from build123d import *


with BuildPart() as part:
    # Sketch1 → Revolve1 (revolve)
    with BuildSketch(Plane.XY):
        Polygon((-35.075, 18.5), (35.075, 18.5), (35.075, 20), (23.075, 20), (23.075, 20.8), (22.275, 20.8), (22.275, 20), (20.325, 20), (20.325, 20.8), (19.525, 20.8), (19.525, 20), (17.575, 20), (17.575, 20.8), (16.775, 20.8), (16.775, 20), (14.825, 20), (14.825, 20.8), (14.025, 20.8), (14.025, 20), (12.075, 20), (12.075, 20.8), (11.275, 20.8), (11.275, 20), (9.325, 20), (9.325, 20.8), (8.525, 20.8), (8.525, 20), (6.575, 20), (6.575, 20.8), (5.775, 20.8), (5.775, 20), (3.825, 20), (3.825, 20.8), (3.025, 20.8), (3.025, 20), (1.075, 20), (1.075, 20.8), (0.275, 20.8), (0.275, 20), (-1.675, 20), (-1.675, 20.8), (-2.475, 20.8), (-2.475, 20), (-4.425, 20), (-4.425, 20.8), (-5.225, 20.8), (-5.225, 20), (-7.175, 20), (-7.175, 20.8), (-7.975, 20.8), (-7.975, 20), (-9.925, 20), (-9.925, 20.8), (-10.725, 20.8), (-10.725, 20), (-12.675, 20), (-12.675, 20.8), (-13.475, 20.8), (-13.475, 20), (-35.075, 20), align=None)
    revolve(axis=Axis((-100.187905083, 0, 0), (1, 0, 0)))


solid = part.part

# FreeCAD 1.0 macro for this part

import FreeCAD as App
import Part
import Sketcher


def add_polygon(sketch, points):
    """Adds a closed chain of lines whose ends are joined by coincident constraints."""
    first, n = sketch.GeometryCount, len(points)
    for a, b in zip(points, points[1:] + points[:1]):
        sketch.addGeometry(Part.LineSegment(App.Vector(*a, 0), App.Vector(*b, 0)), False)
    for i in range(n):
        sketch.addConstraint(Sketcher.Constraint("Coincident", first + i, 2, first + (i + 1) % n, 1))

doc = App.newDocument("Part")
body = doc.addObject("PartDesign::Body", "Body")

# Sketch on XY plane
sketch1 = body.newObject("Sketcher::SketchObject", "Sketch")
sketch1.AttachmentSupport = (doc.getObject("XY_Plane"), [""])
sketch1.MapMode = "FlatFace"
add_polygon(sketch1, [(-35.075, 18.5), (35.075, 18.5), (35.075, 20), (23.075, 20), (23.075, 20.8), (22.275, 20.8), (22.275, 20), (20.325, 20), (20.325, 20.8), (19.525, 20.8), (19.525, 20), (17.575, 20), (17.575, 20.8), (16.775, 20.8), (16.775, 20), (14.825, 20), (14.825, 20.8), (14.025, 20.8), (14.025, 20), (12.075, 20), (12.075, 20.8), (11.275, 20.8), (11.275, 20), (9.325, 20), (9.325, 20.8), (8.525, 20.8), (8.525, 20), (6.575, 20), (6.575, 20.8), (5.775, 20.8), (5.775, 20), (3.825, 20), (3.825, 20.8), (3.025, 20.8), (3.025, 20), (1.075, 20), (1.075, 20.8), (0.275, 20.8), (0.275, 20), (-1.675, 20), (-1.675, 20.8), (-2.475, 20.8), (-2.475, 20), (-4.425, 20), (-4.425, 20.8), (-5.225, 20.8), (-5.225, 20), (-7.175, 20), (-7.175, 20.8), (-7.975, 20.8), (-7.975, 20), (-9.925, 20), (-9.925, 20.8), (-10.725, 20.8), (-10.725, 20), (-12.675, 20), (-12.675, 20.8), (-13.475, 20.8), (-13.475, 20), (-35.075, 20)])  # lines 0-59
sketch1.addConstraint(Sketcher.Constraint("Horizontal", 0))
sketch1.addConstraint(Sketcher.Constraint("Vertical", 1))
sketch1.addConstraint(Sketcher.Constraint("Horizontal", 2))
sketch1.addConstraint(Sketcher.Constraint("Vertical", 3))
sketch1.addConstraint(Sketcher.Constraint("Horizontal", 4))
sketch1.addConstraint(Sketcher.Constraint("Vertical", 5))
sketch1.addConstraint(Sketcher.Constraint("Horizontal", 6))
sketch1.addConstraint(Sketcher.Constraint("Vertical", 7))
sketch1.addConstraint(Sketcher.Constraint("Horizontal", 8))
sketch1.addConstraint(Sketcher.Constraint("Vertical", 9))
sketch1.addConstraint(Sketcher.Constraint("Horizontal", 10))
sketch1.addConstraint(Sketcher.Constraint("Vertical", 11))
sketch1.addConstraint(Sketcher.Constraint("Horizontal", 12))
sketch1.addConstraint(Sketcher.Constraint("Vertical", 13))
sketch1.addConstraint(Sketcher.Constraint("Horizontal", 14))
sketch1.addConstraint(Sketcher.Constraint("Vertical", 15))
sketch1.addConstraint(Sketcher.Constraint("Horizontal", 16))
sketch1.addConstraint(Sketcher.Constraint("Vertical", 17))
sketch1.addConstraint(Sketcher.Constraint("Horizontal", 18))
sketch1.addConstraint(Sketcher.Constraint("Vertical", 19))
sketch1.addConstraint(Sketcher.Constraint("Horizontal", 20))
sketch1.addConstraint(Sketcher.Constraint("Vertical", 21))
sketch1.addConstraint(Sketcher.Constraint("Horizontal", 22))
sketch1.addConstraint(Sketcher.Constraint("Vertical", 23))
sketch1.addConstraint(Sketcher.Constraint("Horizontal", 24))
sketch1.addConstraint(Sketcher.Constraint("Vertical", 25))
sketch1.addConstraint(Sketcher.Constraint("Horizontal", 26))
sketch1.addConstraint(Sketcher.Constraint("Vertical", 27))
sketch1.addConstraint(Sketcher.Constraint("Horizontal", 28))
sketch1.addConstraint(Sketcher.Constraint("Vertical", 29))
sketch1.addConstraint(Sketcher.Constraint("Horizontal", 30))
sketch1.addConstraint(Sketcher.Constraint("Vertical", 31))
sketch1.addConstraint(Sketcher.Constraint("Horizontal", 32))
sketch1.addConstraint(Sketcher.Constraint("Vertical", 33))
sketch1.addConstraint(Sketcher.Constraint("Horizontal", 34))
sketch1.addConstraint(Sketcher.Constraint("Vertical", 35))
sketch1.addConstraint(Sketcher.Constraint("Horizontal", 36))
sketch1.addConstraint(Sketcher.Constraint("Vertical", 37))
sketch1.addConstraint(Sketcher.Constraint("Horizontal", 38))
sketch1.addConstraint(Sketcher.Constraint("Vertical", 39))
sketch1.addConstraint(Sketcher.Constraint("Horizontal", 40))
sketch1.addConstraint(Sketcher.Constraint("Vertical", 41))
sketch1.addConstraint(Sketcher.Constraint("Horizontal", 42))
sketch1.addConstraint(Sketcher.Constraint("Vertical", 43))
sketch1.addConstraint(Sketcher.Constraint("Horizontal", 44))
sketch1.addConstraint(Sketcher.Constraint("Vertical", 45))
sketch1.addConstraint(Sketcher.Constraint("Horizontal", 46))
sketch1.addConstraint(Sketcher.Constraint("Vertical", 47))
sketch1.addConstraint(Sketcher.Constraint("Horizontal", 48))
sketch1.addConstraint(Sketcher.Constraint("Vertical", 49))
sketch1.addConstraint(Sketcher.Constraint("Horizontal", 50))
sketch1.addConstraint(Sketcher.Constraint("Vertical", 51))
sketch1.addConstraint(Sketcher.Constraint("Horizontal", 52))
sketch1.addConstraint(Sketcher.Constraint("Vertical", 53))
sketch1.addConstraint(Sketcher.Constraint("Horizontal", 54))
sketch1.addConstraint(Sketcher.Constraint("Vertical", 55))
sketch1.addConstraint(Sketcher.Constraint("Horizontal", 56))
sketch1.addConstraint(Sketcher.Constraint("Vertical", 57))
sketch1.addConstraint(Sketcher.Constraint("Horizontal", 58))
sketch1.addConstraint(Sketcher.Constraint("Vertical", 59))
sketch1.addConstraint(Sketcher.Constraint("Symmetric", 1, 2, 58, 2, -2))
sketch1.addConstraint(Sketcher.Constraint("Horizontal", 2, 2, 5, 2))
sketch1.addConstraint(Sketcher.Constraint("Horizontal", 4, 2, 7, 2))
sketch1.addConstraint(Sketcher.Constraint("Horizontal", 6, 2, 9, 2))
sketch1.addConstraint(Sketcher.Constraint("Horizontal", 8, 2, 11, 2))
sketch1.addConstraint(Sketcher.Constraint("Horizontal", 10, 2, 13, 2))
sketch1.addConstraint(Sketcher.Constraint("Horizontal", 12, 2, 15, 2))
sketch1.addConstraint(Sketcher.Constraint("Horizontal", 14, 2, 17, 2))
sketch1.addConstraint(Sketcher.Constraint("Horizontal", 16, 2, 19, 2))
sketch1.addConstraint(Sketcher.Constraint("Horizontal", 18, 2, 21, 2))
sketch1.addConstraint(Sketcher.Constraint("Horizontal", 20, 2, 23, 2))
sketch1.addConstraint(Sketcher.Constraint("Horizontal", 22, 2, 25, 2))
sketch1.addConstraint(Sketcher.Constraint("Horizontal", 24, 2, 27, 2))
sketch1.addConstraint(Sketcher.Constraint("Horizontal", 26, 2, 29, 2))
sketch1.addConstraint(Sketcher.Constraint("Horizontal", 28, 2, 31, 2))
sketch1.addConstraint(Sketcher.Constraint("Horizontal", 30, 2, 33, 2))
sketch1.addConstraint(Sketcher.Constraint("Horizontal", 32, 2, 35, 2))
sketch1.addConstraint(Sketcher.Constraint("Horizontal", 34, 2, 37, 2))
sketch1.addConstraint(Sketcher.Constraint("Horizontal", 36, 2, 39, 2))
sketch1.addConstraint(Sketcher.Constraint("Horizontal", 38, 2, 41, 2))
sketch1.addConstraint(Sketcher.Constraint("Horizontal", 40, 2, 43, 2))
sketch1.addConstraint(Sketcher.Constraint("Horizontal", 42, 2, 45, 2))
sketch1.addConstraint(Sketcher.Constraint("Horizontal", 44, 2, 47, 2))
sketch1.addConstraint(Sketcher.Constraint("Horizontal", 46, 2, 49, 2))
sketch1.addConstraint(Sketcher.Constraint("Horizontal", 48, 2, 51, 2))
sketch1.addConstraint(Sketcher.Constraint("Horizontal", 50, 2, 53, 2))
sketch1.addConstraint(Sketcher.Constraint("Horizontal", 52, 2, 55, 2))
sketch1.addConstraint(Sketcher.Constraint("Equal", 4, 8))
sketch1.addConstraint(Sketcher.Constraint("Equal", 6, 10))
sketch1.addConstraint(Sketcher.Constraint("Equal", 8, 12))
sketch1.addConstraint(Sketcher.Constraint("Equal", 10, 14))
sketch1.addConstraint(Sketcher.Constraint("Equal", 12, 16))
sketch1.addConstraint(Sketcher.Constraint("Equal", 14, 18))
sketch1.addConstraint(Sketcher.Constraint("Equal", 16, 20))
sketch1.addConstraint(Sketcher.Constraint("Equal", 18, 22))
sketch1.addConstraint(Sketcher.Constraint("Equal", 20, 24))
sketch1.addConstraint(Sketcher.Constraint("Equal", 22, 26))
sketch1.addConstraint(Sketcher.Constraint("Equal", 24, 28))
sketch1.addConstraint(Sketcher.Constraint("Equal", 26, 30))
sketch1.addConstraint(Sketcher.Constraint("Equal", 28, 32))
sketch1.addConstraint(Sketcher.Constraint("Equal", 30, 34))
sketch1.addConstraint(Sketcher.Constraint("Equal", 32, 36))
sketch1.addConstraint(Sketcher.Constraint("Equal", 34, 38))
sketch1.addConstraint(Sketcher.Constraint("Equal", 36, 40))
sketch1.addConstraint(Sketcher.Constraint("Equal", 38, 42))
sketch1.addConstraint(Sketcher.Constraint("Equal", 40, 44))
sketch1.addConstraint(Sketcher.Constraint("Equal", 42, 46))
sketch1.addConstraint(Sketcher.Constraint("Equal", 44, 48))
sketch1.addConstraint(Sketcher.Constraint("Equal", 46, 50))
sketch1.addConstraint(Sketcher.Constraint("Equal", 48, 52))
sketch1.addConstraint(Sketcher.Constraint("Equal", 50, 54))
sketch1.addConstraint(Sketcher.Constraint("Equal", 52, 56))
sketch1.addConstraint(Sketcher.Constraint("Equal", 56, 3))
sketch1.addConstraint(Sketcher.Constraint("DistanceX", 2, 2, 2, 1, 12.0))
sketch1.addConstraint(Sketcher.Constraint("DistanceX", 4, 2, 4, 1, 0.8))
sketch1.addConstraint(Sketcher.Constraint("DistanceX", 58, 2, 58, 1, 21.6))
sketch1.addConstraint(Sketcher.Constraint("DistanceY", 1, 1, 1, 2, 1.5))
sketch1.addConstraint(Sketcher.Constraint("DistanceY", -1, 1, 1, 2, 20.0))
sketch1.addConstraint(Sketcher.Constraint("DistanceX", 0, 1, 0, 2, 70.15))
revolution = body.newObject("PartDesign::Revolution", "Revolution")
revolution.Profile = sketch1
revolution.ReferenceAxis = (sketch1, ["H_Axis"])
revolution.Angle = 360

doc.recompute()
